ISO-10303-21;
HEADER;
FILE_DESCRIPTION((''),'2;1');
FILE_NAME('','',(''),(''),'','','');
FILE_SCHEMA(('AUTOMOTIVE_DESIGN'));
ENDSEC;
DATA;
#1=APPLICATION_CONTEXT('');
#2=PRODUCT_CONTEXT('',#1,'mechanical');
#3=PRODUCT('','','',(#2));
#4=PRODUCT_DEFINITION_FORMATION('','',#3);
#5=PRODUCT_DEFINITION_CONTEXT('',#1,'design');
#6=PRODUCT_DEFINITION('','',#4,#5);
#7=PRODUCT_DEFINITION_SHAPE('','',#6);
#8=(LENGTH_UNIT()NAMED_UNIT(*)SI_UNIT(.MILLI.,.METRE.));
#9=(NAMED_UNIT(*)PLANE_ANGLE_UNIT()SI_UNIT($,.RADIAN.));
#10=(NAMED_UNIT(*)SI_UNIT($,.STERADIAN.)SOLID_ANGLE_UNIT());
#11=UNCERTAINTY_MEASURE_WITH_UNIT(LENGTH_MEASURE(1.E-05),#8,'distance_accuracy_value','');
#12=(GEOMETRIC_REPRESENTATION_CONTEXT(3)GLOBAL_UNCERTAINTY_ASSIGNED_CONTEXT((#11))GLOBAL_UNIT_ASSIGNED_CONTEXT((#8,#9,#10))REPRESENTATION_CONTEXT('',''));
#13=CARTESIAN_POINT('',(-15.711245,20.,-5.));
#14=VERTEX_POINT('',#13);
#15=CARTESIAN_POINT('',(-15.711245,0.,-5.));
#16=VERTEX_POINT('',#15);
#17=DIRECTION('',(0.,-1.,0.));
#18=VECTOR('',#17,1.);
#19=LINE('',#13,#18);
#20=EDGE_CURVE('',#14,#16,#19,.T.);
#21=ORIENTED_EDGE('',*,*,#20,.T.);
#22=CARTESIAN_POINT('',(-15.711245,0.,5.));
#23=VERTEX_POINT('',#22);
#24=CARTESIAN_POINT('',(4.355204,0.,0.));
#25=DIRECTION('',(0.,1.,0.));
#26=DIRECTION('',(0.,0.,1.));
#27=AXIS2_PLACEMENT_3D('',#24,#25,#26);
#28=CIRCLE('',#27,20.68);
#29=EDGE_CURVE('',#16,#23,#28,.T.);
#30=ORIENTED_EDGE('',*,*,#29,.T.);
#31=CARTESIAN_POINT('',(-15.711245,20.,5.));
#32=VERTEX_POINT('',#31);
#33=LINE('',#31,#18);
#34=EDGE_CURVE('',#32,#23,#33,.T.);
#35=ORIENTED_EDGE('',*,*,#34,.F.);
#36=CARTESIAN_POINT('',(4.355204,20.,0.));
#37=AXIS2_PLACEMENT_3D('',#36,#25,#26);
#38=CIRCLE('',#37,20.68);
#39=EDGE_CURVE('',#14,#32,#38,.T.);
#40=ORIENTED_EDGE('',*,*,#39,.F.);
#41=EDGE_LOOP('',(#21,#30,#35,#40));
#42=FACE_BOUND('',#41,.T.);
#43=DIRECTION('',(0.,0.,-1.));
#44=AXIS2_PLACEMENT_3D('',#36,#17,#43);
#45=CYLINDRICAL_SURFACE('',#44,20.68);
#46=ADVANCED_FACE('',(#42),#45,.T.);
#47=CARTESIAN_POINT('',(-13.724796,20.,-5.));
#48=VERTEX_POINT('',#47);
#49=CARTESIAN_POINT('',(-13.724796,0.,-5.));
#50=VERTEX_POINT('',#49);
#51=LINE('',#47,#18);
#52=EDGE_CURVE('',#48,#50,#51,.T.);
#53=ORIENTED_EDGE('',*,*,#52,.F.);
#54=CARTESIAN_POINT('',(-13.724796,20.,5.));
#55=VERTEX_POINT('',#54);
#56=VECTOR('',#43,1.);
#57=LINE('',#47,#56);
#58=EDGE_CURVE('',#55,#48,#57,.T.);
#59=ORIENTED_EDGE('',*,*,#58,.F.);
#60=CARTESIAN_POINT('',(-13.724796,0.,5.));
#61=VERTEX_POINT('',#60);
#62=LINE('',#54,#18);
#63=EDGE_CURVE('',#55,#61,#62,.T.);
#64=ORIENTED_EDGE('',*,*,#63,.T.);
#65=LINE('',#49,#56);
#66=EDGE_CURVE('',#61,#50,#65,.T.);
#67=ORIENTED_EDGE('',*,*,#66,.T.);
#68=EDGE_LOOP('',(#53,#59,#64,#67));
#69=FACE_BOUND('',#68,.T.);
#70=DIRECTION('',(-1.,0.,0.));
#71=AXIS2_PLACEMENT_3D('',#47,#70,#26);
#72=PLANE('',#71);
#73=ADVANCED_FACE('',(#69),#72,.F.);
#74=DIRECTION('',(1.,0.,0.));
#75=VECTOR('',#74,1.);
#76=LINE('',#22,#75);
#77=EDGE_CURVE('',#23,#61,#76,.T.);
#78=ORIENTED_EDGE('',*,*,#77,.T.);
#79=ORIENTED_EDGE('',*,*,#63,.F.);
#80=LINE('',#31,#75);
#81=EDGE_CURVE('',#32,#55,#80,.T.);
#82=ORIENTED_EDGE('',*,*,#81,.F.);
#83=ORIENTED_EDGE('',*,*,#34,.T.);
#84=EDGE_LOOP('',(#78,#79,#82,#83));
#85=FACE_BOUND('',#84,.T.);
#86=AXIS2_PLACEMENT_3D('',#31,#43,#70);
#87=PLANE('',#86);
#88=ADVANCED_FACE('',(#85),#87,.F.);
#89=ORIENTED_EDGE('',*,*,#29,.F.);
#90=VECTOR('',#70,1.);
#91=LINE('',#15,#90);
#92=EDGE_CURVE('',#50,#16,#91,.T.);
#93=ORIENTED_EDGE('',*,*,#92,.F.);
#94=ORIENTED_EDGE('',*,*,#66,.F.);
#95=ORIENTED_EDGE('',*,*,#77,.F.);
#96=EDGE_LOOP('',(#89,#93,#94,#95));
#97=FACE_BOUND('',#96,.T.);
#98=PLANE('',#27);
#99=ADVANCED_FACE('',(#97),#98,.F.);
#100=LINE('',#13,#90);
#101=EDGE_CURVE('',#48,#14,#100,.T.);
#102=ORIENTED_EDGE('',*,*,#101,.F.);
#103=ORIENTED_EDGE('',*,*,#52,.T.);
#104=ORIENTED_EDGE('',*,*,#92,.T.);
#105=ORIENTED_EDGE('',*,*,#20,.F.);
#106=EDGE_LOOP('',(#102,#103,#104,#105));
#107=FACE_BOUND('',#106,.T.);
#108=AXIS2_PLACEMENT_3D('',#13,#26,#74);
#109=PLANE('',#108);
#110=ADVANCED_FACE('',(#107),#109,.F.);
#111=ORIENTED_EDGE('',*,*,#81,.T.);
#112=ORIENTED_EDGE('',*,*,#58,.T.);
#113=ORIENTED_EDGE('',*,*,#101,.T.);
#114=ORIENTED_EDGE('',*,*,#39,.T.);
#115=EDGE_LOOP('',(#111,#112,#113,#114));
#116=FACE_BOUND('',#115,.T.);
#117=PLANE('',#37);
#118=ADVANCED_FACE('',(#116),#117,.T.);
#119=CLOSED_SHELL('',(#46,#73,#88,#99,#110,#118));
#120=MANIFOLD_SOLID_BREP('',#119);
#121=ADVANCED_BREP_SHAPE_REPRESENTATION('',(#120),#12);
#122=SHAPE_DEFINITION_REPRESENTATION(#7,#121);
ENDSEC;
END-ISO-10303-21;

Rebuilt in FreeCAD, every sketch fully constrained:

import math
import FreeCAD as App
import Part
import Sketcher

V = App.Vector
Q = App.Units.Quantity

doc = App.newDocument("Part")
body = doc.addObject("PartDesign::Body", "Body")

sketch1 = doc.addObject("Sketcher::SketchObject", "Sketch")
body.addObject(sketch1)
sketch1.AttachmentSupport = (doc.XZ_Plane, [""])
sketch1.MapMode = "FlatFace"
sketch1.addGeometry([
    Part.LineSegment(V(-13.724796, -5, 0), V(-15.711245, -5, 0)),
    Part.ArcOfCircle(Part.Circle(V(4.355204, 0, 0), V(0, 0, 1), 20.68), math.radians(166.008408), math.radians(193.991592)),
    Part.LineSegment(V(-15.711245, 5, 0), V(-13.724796, 5, 0)),
    Part.LineSegment(V(-13.724796, 5, 0), V(-13.724796, -5, 0)),
], False)
sketch1.addConstraint([
    Sketcher.Constraint("Coincident", 0, 2, 1, 2),
    Sketcher.Constraint("Coincident", 1, 1, 2, 1),
    Sketcher.Constraint("Coincident", 2, 2, 3, 1),
    Sketcher.Constraint("Coincident", 3, 2, 0, 1),
    Sketcher.Constraint("Horizontal", 0),
    Sketcher.Constraint("Horizontal", 2),
    Sketcher.Constraint("Vertical", 3),
    Sketcher.Constraint("Symmetric", 0, 2, 1, 1, -1),
    Sketcher.Constraint("DistanceY", 3, 2, 3, 1, Q("10 mm")),
    Sketcher.Constraint("Radius", 1, Q("20.68 mm")),
    Sketcher.Constraint("DistanceX", 2, 2, 1, 3, Q("18.08 mm")),
    Sketcher.Constraint("DistanceX", -1, 1, 1, 3, Q("4.355204 mm")),
])
pad1 = doc.addObject("PartDesign::Pad", "Pad")
body.addObject(pad1)
pad1.Profile = sketch1
pad1.Length = 20
pad1.Reversed = True

doc.recompute()
